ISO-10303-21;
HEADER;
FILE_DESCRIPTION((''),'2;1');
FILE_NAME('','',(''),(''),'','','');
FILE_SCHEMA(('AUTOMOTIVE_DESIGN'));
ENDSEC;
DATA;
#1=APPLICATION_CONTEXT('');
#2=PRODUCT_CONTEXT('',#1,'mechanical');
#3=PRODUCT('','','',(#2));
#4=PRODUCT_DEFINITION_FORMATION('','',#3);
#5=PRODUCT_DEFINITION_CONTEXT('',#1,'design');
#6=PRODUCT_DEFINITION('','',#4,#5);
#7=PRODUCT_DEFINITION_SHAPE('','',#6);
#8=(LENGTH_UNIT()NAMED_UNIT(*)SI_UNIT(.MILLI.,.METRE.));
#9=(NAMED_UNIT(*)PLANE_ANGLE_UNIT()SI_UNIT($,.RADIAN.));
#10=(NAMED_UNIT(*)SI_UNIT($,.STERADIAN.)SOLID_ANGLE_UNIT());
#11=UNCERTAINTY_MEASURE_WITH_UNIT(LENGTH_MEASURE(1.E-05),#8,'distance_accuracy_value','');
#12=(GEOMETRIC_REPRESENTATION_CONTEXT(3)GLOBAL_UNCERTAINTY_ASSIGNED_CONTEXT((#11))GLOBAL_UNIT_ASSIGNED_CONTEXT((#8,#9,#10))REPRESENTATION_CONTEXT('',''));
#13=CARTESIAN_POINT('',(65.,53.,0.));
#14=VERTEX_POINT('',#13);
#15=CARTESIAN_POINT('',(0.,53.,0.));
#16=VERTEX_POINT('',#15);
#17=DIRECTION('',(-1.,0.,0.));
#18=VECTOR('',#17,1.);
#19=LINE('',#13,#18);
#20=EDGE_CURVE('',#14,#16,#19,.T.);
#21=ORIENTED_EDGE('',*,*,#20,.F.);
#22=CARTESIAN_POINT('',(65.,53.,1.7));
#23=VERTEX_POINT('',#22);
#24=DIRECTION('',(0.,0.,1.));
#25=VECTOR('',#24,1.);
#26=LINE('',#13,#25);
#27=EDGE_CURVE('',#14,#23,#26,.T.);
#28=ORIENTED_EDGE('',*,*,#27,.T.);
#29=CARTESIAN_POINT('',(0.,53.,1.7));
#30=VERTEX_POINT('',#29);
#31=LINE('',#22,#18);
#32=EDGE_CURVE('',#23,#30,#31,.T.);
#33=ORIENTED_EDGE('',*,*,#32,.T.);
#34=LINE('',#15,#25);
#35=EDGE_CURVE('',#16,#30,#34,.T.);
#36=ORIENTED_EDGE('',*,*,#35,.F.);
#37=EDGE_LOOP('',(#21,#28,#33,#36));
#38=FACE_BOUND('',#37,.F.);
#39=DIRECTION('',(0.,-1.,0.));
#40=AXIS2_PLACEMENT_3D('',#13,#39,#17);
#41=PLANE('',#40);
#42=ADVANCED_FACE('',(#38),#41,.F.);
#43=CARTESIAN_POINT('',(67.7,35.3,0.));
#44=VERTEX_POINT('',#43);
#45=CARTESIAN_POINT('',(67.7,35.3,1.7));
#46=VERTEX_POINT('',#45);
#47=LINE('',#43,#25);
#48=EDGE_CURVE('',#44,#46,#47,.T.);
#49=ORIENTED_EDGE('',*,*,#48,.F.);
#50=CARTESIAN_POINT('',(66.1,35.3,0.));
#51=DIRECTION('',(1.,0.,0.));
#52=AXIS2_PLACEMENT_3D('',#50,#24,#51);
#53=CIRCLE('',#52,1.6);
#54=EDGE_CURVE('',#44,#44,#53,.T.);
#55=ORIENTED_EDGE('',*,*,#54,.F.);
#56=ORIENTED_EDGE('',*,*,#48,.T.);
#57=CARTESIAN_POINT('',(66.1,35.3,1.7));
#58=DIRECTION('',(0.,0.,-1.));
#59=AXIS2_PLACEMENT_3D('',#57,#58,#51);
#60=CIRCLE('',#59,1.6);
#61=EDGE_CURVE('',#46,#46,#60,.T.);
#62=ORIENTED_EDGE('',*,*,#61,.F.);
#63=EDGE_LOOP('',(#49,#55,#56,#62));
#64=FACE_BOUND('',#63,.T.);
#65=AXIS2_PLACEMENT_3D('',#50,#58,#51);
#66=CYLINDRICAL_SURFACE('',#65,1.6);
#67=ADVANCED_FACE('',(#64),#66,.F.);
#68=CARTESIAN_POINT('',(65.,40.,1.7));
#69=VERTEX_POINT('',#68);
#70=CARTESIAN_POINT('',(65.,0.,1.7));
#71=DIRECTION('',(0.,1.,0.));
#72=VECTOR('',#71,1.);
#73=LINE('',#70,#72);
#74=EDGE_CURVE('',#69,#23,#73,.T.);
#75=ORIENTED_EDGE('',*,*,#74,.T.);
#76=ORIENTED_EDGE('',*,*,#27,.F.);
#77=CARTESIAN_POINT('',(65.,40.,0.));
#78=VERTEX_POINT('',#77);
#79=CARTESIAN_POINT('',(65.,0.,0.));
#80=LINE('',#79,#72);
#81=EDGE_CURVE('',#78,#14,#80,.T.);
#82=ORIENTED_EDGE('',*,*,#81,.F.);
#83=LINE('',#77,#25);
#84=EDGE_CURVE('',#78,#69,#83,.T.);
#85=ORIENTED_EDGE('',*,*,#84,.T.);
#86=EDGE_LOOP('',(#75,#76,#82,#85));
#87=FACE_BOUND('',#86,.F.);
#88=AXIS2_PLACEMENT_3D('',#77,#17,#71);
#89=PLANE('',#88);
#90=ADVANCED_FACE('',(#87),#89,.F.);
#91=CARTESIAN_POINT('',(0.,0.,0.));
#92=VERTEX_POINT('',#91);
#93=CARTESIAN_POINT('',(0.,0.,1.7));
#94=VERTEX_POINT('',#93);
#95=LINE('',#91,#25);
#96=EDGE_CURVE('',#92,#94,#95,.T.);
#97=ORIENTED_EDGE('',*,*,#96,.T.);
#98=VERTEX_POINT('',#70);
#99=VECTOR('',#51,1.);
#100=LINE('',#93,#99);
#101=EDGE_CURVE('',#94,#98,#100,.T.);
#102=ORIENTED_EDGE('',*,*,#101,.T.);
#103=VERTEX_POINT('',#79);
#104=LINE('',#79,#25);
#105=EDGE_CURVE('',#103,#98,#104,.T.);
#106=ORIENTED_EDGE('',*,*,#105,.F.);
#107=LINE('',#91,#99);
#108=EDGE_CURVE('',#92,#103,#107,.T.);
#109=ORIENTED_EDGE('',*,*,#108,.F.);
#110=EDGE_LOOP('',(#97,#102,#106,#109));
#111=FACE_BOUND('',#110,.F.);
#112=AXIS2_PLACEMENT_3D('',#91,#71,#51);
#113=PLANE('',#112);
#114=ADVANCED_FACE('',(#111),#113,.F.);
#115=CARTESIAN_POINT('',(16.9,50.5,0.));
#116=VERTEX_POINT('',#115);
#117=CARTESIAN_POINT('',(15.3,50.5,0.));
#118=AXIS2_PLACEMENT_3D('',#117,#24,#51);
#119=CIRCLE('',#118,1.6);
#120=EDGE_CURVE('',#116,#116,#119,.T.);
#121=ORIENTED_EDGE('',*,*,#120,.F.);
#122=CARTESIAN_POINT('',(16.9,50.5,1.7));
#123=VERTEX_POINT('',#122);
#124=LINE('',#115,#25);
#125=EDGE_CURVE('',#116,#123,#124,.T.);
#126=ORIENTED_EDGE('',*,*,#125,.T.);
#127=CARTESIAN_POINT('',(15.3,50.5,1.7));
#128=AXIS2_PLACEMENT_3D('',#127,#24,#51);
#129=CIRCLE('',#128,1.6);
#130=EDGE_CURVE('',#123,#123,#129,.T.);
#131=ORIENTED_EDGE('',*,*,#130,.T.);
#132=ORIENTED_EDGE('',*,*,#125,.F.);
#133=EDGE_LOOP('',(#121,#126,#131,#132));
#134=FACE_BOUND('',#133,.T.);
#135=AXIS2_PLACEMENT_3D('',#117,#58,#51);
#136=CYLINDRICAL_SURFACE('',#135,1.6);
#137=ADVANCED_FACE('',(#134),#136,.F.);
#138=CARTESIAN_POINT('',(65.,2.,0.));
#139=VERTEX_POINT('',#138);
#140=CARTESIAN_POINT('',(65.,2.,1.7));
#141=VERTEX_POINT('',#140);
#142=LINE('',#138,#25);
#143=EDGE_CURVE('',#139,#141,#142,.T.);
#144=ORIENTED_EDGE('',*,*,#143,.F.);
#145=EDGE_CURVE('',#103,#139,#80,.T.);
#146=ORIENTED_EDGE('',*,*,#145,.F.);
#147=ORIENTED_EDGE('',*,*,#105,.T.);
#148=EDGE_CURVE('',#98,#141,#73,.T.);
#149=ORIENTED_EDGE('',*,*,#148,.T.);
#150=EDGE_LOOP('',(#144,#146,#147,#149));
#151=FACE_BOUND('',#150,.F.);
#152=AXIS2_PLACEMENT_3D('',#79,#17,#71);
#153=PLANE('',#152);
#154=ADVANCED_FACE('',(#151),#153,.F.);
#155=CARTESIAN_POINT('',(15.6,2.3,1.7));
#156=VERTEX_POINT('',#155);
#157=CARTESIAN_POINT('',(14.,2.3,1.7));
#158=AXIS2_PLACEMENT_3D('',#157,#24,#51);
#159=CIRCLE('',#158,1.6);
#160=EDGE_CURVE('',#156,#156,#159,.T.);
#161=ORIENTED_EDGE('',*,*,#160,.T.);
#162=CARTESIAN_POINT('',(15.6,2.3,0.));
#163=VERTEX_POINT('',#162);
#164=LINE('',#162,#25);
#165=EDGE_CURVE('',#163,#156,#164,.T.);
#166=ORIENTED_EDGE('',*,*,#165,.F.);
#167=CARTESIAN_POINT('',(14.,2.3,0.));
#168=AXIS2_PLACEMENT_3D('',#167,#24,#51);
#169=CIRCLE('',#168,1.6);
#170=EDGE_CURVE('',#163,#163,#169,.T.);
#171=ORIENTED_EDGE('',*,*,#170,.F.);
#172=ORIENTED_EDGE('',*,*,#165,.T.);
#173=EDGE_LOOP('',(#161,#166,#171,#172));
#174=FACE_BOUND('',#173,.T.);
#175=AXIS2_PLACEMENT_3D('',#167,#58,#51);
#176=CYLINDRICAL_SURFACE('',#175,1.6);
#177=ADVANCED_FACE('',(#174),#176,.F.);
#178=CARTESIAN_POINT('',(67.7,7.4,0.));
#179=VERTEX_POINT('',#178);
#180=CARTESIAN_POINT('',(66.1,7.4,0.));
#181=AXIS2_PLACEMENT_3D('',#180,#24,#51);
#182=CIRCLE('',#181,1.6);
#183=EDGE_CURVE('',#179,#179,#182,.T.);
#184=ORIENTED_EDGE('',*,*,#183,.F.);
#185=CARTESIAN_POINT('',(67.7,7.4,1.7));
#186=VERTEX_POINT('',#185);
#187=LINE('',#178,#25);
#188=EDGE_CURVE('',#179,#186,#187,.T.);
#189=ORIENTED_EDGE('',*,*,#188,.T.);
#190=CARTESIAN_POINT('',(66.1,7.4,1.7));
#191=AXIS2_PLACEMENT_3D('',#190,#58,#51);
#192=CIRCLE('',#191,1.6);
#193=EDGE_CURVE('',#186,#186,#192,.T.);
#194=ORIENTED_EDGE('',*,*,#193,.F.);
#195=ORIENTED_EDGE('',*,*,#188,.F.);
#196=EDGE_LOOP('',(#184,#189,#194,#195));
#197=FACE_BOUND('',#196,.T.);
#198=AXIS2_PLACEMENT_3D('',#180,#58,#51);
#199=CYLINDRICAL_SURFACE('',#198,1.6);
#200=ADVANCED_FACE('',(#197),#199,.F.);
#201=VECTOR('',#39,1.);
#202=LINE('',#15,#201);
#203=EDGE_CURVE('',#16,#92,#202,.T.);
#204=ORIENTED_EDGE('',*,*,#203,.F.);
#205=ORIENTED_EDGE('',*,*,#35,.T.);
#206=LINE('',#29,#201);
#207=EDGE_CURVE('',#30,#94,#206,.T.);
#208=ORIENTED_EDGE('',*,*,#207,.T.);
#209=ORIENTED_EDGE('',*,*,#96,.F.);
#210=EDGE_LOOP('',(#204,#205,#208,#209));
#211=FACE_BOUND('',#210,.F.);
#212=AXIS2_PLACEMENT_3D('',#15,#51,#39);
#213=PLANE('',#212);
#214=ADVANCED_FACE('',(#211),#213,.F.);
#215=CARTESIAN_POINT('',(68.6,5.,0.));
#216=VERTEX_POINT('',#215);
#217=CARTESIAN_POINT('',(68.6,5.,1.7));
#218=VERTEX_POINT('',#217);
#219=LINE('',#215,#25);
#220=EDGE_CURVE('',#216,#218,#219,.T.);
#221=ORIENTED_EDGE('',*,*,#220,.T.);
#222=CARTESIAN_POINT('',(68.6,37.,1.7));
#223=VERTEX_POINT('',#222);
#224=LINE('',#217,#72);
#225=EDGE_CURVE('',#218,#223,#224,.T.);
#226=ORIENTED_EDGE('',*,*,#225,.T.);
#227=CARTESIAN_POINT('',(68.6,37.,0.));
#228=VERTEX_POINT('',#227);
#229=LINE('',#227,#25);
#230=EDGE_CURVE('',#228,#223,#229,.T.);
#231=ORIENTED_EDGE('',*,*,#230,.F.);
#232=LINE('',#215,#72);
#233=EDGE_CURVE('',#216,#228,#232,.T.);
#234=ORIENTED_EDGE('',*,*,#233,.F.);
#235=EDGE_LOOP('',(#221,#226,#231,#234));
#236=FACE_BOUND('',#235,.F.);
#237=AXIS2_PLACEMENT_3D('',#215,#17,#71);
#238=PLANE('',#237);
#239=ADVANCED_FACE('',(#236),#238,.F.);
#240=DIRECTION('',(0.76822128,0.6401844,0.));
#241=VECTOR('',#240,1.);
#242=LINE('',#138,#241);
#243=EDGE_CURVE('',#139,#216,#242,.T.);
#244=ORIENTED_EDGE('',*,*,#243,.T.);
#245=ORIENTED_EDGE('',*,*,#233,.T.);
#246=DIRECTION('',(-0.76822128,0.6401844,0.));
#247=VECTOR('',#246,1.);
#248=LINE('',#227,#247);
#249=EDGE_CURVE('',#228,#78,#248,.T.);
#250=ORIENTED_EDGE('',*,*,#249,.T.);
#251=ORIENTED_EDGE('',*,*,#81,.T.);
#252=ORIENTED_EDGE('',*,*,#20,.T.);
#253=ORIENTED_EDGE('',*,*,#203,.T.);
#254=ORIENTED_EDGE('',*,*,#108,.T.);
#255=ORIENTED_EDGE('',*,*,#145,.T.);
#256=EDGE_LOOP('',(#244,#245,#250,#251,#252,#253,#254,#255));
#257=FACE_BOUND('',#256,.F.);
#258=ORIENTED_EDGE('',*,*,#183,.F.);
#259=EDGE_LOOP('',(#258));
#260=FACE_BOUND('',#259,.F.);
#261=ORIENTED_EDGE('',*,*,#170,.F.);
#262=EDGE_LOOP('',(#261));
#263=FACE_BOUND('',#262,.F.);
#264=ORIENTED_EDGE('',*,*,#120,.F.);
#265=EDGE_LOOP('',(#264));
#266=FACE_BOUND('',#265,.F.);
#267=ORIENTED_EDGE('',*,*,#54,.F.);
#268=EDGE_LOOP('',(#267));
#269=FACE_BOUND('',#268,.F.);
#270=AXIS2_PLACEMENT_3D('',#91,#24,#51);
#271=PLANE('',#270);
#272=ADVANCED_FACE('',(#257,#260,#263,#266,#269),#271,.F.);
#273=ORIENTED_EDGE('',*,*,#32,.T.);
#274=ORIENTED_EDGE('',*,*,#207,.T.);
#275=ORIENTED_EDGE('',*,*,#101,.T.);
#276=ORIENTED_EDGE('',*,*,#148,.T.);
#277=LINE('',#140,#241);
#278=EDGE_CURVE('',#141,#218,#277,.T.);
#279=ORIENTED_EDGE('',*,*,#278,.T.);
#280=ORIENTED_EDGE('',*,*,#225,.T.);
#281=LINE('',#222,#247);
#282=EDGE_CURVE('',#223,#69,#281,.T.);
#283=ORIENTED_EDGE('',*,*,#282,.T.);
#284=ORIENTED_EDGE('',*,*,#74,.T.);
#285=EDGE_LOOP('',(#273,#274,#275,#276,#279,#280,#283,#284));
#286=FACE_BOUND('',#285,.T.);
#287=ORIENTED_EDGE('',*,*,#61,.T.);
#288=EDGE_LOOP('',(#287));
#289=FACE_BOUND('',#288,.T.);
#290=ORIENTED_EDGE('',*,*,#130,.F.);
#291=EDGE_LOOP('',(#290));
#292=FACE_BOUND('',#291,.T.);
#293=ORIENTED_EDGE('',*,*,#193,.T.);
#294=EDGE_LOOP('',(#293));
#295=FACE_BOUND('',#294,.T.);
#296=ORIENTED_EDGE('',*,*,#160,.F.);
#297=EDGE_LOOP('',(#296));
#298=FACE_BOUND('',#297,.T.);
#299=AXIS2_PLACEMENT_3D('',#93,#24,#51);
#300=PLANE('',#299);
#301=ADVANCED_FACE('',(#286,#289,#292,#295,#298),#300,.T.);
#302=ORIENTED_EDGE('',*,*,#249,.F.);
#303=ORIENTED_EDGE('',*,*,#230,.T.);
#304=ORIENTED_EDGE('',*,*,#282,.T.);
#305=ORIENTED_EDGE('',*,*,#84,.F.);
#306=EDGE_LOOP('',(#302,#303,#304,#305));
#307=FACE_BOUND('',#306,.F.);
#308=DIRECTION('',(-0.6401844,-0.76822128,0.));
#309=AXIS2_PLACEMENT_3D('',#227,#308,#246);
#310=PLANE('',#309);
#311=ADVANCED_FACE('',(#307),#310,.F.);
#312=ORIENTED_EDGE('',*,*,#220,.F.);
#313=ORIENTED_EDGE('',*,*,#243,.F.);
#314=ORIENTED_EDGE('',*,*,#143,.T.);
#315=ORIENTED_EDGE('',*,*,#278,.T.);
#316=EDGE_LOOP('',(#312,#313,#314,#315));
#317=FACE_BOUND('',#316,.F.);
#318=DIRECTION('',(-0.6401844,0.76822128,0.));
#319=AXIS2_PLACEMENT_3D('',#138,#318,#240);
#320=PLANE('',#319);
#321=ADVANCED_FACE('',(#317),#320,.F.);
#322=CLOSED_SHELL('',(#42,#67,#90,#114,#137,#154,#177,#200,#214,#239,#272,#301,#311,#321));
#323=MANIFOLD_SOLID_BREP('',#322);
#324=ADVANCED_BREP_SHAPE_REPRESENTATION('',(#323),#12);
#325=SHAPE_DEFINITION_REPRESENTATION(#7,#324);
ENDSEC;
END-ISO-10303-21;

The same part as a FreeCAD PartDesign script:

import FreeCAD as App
import Part
import Sketcher
from FreeCAD import Vector
Q = App.Units.Quantity

doc = App.newDocument("Part")
body = doc.addObject("PartDesign::Body", "Body")

sketch1 = doc.addObject("Sketcher::SketchObject", "Sketch")
body.addObject(sketch1)
sketch1.AttachmentSupport = (doc.XY_Plane, [""])
sketch1.MapMode = "FlatFace"
sketch1.addGeometry([
    Part.LineSegment(Vector(0, 53, 0), Vector(0, 0, 0)),
    Part.LineSegment(Vector(0, 0, 0), Vector(65, 0, 0)),
    Part.LineSegment(Vector(65, 0, 0), Vector(65, 2, 0)),
    Part.LineSegment(Vector(65, 2, 0), Vector(68.6, 5, 0)),
    Part.LineSegment(Vector(68.6, 5, 0), Vector(68.6, 37, 0)),
    Part.LineSegment(Vector(68.6, 37, 0), Vector(65, 40, 0)),
    Part.LineSegment(Vector(65, 40, 0), Vector(65, 53, 0)),
    Part.LineSegment(Vector(65, 53, 0), Vector(0, 53, 0)),
    Part.Circle(Vector(66.1, 35.3, 0), Vector(0, 0, 1), 1.6),
    Part.Circle(Vector(66.1, 7.4, 0), Vector(0, 0, 1), 1.6),
    Part.Circle(Vector(14, 2.3, 0), Vector(0, 0, 1), 1.6),
    Part.Circle(Vector(15.3, 50.5, 0), Vector(0, 0, 1), 1.6),
], False)
sketch1.addConstraint([
    Sketcher.Constraint("Coincident", 0, 2, 1, 1),
    Sketcher.Constraint("Coincident", 1, 2, 2, 1),
    Sketcher.Constraint("Coincident", 2, 2, 3, 1),
    Sketcher.Constraint("Coincident", 3, 2, 4, 1),
    Sketcher.Constraint("Coincident", 4, 2, 5, 1),
    Sketcher.Constraint("Coincident", 5, 2, 6, 1),
    Sketcher.Constraint("Coincident", 6, 2, 7, 1),
    Sketcher.Constraint("Coincident", 7, 2, 0, 1),
    Sketcher.Constraint("Vertical", 0),
    Sketcher.Constraint("Horizontal", 1),
    Sketcher.Constraint("Vertical", 2),
    Sketcher.Constraint("Vertical", 4),
    Sketcher.Constraint("Vertical", 6),
    Sketcher.Constraint("Horizontal", 7),
    Sketcher.Constraint("Coincident", 0, 2, -1, 1),
    Sketcher.Constraint("Equal", 8, 9),
    Sketcher.Constraint("Equal", 9, 10),
    Sketcher.Constraint("Equal", 10, 11),
    Sketcher.Constraint("Vertical", 8, 3, 9, 3),
    Sketcher.Constraint("Vertical", 2, 2, 5, 2),
    Sketcher.Constraint("Equal", 3, 5),
    Sketcher.Constraint("Diameter", 8, Q("3.2 mm")),
    Sketcher.Constraint("DistanceX", 1, 1, 1, 2, Q("65 mm")),
    Sketcher.Constraint("DistanceY", 0, 2, 0, 1, Q("53 mm")),
    Sketcher.Constraint("DistanceY", 2, 1, 2, 2, Q("2 mm")),
    Sketcher.Constraint("DistanceX", -1, 1, 10, 3, Q("14 mm")),
    Sketcher.Constraint("DistanceY", -1, 1, 3, 2, Q("5 mm")),
    Sketcher.Constraint("DistanceY", -1, 1, 4, 2, Q("37 mm")),
    Sketcher.Constraint("DistanceX", -1, 1, 8, 3, Q("66.1 mm")),
    Sketcher.Constraint("DistanceY", -1, 1, 8, 3, Q("35.3 mm")),
    Sketcher.Constraint("DistanceY", -1, 1, 9, 3, Q("7.4 mm")),
    Sketcher.Constraint("DistanceY", -1, 1, 10, 3, Q("2.3 mm")),
    Sketcher.Constraint("DistanceX", -1, 1, 11, 3, Q("15.3 mm")),
    Sketcher.Constraint("DistanceY", -1, 1, 11, 3, Q("50.5 mm")),
    Sketcher.Constraint("DistanceX", -1, 1, 3, 2, Q("68.6 mm")),
])
pad1 = doc.addObject("PartDesign::Pad", "Pad")
body.addObject(pad1)
pad1.Profile = sketch1
pad1.Length = 1.7

doc.recompute()
